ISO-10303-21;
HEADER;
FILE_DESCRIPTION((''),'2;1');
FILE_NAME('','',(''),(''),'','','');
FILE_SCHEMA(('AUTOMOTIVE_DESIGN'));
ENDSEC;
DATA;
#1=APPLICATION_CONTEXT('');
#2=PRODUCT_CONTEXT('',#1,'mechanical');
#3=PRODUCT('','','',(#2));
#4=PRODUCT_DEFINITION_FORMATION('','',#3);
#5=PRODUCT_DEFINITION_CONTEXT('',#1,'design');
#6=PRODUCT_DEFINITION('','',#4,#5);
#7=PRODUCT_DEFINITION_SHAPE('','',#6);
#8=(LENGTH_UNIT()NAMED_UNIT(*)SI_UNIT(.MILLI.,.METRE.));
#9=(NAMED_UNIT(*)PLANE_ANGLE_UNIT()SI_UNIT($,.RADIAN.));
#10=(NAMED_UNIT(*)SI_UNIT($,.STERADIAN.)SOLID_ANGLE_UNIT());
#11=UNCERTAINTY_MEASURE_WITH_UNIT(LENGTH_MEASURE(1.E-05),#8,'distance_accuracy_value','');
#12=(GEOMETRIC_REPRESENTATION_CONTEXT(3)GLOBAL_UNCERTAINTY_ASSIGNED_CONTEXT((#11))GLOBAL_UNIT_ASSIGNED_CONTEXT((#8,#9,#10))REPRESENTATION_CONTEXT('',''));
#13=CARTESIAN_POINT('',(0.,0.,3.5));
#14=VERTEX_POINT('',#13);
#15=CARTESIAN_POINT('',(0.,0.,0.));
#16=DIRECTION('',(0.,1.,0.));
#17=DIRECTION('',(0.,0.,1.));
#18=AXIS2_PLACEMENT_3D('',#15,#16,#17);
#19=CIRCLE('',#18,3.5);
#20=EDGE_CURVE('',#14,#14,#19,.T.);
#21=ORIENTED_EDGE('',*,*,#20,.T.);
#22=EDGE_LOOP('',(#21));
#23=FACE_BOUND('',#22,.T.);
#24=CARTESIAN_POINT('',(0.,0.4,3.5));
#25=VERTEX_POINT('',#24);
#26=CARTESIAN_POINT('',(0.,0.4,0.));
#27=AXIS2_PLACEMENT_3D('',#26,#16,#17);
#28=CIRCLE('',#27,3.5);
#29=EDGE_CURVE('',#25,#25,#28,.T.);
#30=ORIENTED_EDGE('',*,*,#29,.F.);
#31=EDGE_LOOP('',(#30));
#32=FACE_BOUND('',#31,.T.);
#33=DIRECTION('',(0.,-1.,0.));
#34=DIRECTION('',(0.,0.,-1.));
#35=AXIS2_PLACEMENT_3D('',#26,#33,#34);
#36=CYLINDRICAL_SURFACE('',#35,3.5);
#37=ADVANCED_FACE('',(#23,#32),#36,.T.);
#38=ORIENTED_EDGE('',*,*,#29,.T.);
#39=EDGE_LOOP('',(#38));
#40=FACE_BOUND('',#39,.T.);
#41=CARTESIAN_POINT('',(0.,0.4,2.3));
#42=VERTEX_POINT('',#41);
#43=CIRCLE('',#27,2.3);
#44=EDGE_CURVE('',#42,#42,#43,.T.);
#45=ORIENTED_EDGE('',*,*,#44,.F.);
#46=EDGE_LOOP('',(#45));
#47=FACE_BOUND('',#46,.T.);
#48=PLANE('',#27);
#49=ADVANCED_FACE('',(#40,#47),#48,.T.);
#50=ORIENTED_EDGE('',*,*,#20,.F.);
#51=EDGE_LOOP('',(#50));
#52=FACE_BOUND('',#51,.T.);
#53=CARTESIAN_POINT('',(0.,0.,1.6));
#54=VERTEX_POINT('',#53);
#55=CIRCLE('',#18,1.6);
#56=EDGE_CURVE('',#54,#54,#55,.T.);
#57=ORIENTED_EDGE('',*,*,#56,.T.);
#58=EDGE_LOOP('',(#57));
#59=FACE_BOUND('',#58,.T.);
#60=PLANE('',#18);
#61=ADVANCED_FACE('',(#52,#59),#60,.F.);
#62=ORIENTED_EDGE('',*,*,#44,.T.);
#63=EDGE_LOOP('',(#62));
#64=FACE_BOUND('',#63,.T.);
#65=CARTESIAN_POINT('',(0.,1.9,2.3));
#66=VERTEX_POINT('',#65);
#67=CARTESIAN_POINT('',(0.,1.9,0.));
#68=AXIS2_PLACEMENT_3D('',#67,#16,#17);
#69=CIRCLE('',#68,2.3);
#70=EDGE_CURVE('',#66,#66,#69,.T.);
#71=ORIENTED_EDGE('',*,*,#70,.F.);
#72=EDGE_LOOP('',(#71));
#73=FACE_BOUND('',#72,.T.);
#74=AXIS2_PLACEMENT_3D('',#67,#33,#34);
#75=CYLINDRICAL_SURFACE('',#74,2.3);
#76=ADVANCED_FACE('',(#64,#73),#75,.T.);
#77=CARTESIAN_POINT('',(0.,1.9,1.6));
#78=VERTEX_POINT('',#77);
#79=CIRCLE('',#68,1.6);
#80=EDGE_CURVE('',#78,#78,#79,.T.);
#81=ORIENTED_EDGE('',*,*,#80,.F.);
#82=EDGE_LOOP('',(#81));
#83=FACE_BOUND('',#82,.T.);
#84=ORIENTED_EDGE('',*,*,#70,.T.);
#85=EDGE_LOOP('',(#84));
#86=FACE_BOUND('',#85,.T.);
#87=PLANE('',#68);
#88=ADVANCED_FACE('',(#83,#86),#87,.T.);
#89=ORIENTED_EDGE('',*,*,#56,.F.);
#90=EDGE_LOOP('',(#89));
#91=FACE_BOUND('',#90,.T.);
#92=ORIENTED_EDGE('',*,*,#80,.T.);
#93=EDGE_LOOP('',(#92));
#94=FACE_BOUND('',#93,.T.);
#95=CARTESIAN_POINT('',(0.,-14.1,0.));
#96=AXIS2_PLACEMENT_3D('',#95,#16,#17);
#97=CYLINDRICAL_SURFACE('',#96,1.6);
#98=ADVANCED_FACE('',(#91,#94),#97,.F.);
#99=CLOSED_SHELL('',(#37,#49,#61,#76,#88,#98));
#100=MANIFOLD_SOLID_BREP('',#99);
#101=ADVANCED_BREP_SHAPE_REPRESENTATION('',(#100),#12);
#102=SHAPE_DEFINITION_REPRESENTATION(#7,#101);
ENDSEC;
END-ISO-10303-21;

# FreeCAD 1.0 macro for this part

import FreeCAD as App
import Part
import Sketcher

doc = App.newDocument("Part")
body = doc.addObject("PartDesign::Body", "Body")

sketch1 = body.newObject("Sketcher::SketchObject", "Sketch")
sketch1.AttachmentSupport = (doc.getObject("XZ_Plane"), [""])
sketch1.MapMode = "FlatFace"
sketch1.addGeometry(Part.Circle(App.Vector(0, 0, 0), App.Vector(0, 0, 1), 3.5), False)
sketch1.addConstraint(Sketcher.Constraint("Coincident", 0, 3, -1, 1))
sketch1.addConstraint(Sketcher.Constraint("Diameter", 0, 7.0))
pad1 = body.newObject("PartDesign::Pad", "Pad")
pad1.Profile = sketch1
pad1.Length = 0.4
pad1.Reversed = True

sketch2 = body.newObject("Sketcher::SketchObject", "Sketch001")
sketch2.AttachmentSupport = (doc.getObject("XZ_Plane"), [""])
sketch2.MapMode = "FlatFace"
sketch2.AttachmentOffset = App.Placement(App.Vector(0, 0, -0.4), App.Rotation())
sketch2.addGeometry(Part.Circle(App.Vector(0, 0, 0), App.Vector(0, 0, 1), 2.3), False)
sketch2.addConstraint(Sketcher.Constraint("Coincident", 0, 3, -1, 1))
sketch2.addConstraint(Sketcher.Constraint("Diameter", 0, 4.6))
pad2 = body.newObject("PartDesign::Pad", "Pad001")
pad2.Profile = sketch2
pad2.Length = 1.5
pad2.Reversed = True

sketch3 = body.newObject("Sketcher::SketchObject", "Sketch002")
sketch3.AttachmentSupport = (doc.getObject("XZ_Plane"), [""])
sketch3.MapMode = "FlatFace"
sketch3.AttachmentOffset = App.Placement(App.Vector(0, 0, -1.9), App.Rotation())
sketch3.addGeometry(Part.Circle(App.Vector(0, 0, 0), App.Vector(0, 0, 1), 1.6), False)
sketch3.addConstraint(Sketcher.Constraint("Coincident", 0, 3, -1, 1))
sketch3.addConstraint(Sketcher.Constraint("Diameter", 0, 3.2))
pocket1 = body.newObject("PartDesign::Pocket", "Pocket")
pocket1.Profile = sketch3
pocket1.Length = 16
pocket1.Reversed = True

doc.recompute()
